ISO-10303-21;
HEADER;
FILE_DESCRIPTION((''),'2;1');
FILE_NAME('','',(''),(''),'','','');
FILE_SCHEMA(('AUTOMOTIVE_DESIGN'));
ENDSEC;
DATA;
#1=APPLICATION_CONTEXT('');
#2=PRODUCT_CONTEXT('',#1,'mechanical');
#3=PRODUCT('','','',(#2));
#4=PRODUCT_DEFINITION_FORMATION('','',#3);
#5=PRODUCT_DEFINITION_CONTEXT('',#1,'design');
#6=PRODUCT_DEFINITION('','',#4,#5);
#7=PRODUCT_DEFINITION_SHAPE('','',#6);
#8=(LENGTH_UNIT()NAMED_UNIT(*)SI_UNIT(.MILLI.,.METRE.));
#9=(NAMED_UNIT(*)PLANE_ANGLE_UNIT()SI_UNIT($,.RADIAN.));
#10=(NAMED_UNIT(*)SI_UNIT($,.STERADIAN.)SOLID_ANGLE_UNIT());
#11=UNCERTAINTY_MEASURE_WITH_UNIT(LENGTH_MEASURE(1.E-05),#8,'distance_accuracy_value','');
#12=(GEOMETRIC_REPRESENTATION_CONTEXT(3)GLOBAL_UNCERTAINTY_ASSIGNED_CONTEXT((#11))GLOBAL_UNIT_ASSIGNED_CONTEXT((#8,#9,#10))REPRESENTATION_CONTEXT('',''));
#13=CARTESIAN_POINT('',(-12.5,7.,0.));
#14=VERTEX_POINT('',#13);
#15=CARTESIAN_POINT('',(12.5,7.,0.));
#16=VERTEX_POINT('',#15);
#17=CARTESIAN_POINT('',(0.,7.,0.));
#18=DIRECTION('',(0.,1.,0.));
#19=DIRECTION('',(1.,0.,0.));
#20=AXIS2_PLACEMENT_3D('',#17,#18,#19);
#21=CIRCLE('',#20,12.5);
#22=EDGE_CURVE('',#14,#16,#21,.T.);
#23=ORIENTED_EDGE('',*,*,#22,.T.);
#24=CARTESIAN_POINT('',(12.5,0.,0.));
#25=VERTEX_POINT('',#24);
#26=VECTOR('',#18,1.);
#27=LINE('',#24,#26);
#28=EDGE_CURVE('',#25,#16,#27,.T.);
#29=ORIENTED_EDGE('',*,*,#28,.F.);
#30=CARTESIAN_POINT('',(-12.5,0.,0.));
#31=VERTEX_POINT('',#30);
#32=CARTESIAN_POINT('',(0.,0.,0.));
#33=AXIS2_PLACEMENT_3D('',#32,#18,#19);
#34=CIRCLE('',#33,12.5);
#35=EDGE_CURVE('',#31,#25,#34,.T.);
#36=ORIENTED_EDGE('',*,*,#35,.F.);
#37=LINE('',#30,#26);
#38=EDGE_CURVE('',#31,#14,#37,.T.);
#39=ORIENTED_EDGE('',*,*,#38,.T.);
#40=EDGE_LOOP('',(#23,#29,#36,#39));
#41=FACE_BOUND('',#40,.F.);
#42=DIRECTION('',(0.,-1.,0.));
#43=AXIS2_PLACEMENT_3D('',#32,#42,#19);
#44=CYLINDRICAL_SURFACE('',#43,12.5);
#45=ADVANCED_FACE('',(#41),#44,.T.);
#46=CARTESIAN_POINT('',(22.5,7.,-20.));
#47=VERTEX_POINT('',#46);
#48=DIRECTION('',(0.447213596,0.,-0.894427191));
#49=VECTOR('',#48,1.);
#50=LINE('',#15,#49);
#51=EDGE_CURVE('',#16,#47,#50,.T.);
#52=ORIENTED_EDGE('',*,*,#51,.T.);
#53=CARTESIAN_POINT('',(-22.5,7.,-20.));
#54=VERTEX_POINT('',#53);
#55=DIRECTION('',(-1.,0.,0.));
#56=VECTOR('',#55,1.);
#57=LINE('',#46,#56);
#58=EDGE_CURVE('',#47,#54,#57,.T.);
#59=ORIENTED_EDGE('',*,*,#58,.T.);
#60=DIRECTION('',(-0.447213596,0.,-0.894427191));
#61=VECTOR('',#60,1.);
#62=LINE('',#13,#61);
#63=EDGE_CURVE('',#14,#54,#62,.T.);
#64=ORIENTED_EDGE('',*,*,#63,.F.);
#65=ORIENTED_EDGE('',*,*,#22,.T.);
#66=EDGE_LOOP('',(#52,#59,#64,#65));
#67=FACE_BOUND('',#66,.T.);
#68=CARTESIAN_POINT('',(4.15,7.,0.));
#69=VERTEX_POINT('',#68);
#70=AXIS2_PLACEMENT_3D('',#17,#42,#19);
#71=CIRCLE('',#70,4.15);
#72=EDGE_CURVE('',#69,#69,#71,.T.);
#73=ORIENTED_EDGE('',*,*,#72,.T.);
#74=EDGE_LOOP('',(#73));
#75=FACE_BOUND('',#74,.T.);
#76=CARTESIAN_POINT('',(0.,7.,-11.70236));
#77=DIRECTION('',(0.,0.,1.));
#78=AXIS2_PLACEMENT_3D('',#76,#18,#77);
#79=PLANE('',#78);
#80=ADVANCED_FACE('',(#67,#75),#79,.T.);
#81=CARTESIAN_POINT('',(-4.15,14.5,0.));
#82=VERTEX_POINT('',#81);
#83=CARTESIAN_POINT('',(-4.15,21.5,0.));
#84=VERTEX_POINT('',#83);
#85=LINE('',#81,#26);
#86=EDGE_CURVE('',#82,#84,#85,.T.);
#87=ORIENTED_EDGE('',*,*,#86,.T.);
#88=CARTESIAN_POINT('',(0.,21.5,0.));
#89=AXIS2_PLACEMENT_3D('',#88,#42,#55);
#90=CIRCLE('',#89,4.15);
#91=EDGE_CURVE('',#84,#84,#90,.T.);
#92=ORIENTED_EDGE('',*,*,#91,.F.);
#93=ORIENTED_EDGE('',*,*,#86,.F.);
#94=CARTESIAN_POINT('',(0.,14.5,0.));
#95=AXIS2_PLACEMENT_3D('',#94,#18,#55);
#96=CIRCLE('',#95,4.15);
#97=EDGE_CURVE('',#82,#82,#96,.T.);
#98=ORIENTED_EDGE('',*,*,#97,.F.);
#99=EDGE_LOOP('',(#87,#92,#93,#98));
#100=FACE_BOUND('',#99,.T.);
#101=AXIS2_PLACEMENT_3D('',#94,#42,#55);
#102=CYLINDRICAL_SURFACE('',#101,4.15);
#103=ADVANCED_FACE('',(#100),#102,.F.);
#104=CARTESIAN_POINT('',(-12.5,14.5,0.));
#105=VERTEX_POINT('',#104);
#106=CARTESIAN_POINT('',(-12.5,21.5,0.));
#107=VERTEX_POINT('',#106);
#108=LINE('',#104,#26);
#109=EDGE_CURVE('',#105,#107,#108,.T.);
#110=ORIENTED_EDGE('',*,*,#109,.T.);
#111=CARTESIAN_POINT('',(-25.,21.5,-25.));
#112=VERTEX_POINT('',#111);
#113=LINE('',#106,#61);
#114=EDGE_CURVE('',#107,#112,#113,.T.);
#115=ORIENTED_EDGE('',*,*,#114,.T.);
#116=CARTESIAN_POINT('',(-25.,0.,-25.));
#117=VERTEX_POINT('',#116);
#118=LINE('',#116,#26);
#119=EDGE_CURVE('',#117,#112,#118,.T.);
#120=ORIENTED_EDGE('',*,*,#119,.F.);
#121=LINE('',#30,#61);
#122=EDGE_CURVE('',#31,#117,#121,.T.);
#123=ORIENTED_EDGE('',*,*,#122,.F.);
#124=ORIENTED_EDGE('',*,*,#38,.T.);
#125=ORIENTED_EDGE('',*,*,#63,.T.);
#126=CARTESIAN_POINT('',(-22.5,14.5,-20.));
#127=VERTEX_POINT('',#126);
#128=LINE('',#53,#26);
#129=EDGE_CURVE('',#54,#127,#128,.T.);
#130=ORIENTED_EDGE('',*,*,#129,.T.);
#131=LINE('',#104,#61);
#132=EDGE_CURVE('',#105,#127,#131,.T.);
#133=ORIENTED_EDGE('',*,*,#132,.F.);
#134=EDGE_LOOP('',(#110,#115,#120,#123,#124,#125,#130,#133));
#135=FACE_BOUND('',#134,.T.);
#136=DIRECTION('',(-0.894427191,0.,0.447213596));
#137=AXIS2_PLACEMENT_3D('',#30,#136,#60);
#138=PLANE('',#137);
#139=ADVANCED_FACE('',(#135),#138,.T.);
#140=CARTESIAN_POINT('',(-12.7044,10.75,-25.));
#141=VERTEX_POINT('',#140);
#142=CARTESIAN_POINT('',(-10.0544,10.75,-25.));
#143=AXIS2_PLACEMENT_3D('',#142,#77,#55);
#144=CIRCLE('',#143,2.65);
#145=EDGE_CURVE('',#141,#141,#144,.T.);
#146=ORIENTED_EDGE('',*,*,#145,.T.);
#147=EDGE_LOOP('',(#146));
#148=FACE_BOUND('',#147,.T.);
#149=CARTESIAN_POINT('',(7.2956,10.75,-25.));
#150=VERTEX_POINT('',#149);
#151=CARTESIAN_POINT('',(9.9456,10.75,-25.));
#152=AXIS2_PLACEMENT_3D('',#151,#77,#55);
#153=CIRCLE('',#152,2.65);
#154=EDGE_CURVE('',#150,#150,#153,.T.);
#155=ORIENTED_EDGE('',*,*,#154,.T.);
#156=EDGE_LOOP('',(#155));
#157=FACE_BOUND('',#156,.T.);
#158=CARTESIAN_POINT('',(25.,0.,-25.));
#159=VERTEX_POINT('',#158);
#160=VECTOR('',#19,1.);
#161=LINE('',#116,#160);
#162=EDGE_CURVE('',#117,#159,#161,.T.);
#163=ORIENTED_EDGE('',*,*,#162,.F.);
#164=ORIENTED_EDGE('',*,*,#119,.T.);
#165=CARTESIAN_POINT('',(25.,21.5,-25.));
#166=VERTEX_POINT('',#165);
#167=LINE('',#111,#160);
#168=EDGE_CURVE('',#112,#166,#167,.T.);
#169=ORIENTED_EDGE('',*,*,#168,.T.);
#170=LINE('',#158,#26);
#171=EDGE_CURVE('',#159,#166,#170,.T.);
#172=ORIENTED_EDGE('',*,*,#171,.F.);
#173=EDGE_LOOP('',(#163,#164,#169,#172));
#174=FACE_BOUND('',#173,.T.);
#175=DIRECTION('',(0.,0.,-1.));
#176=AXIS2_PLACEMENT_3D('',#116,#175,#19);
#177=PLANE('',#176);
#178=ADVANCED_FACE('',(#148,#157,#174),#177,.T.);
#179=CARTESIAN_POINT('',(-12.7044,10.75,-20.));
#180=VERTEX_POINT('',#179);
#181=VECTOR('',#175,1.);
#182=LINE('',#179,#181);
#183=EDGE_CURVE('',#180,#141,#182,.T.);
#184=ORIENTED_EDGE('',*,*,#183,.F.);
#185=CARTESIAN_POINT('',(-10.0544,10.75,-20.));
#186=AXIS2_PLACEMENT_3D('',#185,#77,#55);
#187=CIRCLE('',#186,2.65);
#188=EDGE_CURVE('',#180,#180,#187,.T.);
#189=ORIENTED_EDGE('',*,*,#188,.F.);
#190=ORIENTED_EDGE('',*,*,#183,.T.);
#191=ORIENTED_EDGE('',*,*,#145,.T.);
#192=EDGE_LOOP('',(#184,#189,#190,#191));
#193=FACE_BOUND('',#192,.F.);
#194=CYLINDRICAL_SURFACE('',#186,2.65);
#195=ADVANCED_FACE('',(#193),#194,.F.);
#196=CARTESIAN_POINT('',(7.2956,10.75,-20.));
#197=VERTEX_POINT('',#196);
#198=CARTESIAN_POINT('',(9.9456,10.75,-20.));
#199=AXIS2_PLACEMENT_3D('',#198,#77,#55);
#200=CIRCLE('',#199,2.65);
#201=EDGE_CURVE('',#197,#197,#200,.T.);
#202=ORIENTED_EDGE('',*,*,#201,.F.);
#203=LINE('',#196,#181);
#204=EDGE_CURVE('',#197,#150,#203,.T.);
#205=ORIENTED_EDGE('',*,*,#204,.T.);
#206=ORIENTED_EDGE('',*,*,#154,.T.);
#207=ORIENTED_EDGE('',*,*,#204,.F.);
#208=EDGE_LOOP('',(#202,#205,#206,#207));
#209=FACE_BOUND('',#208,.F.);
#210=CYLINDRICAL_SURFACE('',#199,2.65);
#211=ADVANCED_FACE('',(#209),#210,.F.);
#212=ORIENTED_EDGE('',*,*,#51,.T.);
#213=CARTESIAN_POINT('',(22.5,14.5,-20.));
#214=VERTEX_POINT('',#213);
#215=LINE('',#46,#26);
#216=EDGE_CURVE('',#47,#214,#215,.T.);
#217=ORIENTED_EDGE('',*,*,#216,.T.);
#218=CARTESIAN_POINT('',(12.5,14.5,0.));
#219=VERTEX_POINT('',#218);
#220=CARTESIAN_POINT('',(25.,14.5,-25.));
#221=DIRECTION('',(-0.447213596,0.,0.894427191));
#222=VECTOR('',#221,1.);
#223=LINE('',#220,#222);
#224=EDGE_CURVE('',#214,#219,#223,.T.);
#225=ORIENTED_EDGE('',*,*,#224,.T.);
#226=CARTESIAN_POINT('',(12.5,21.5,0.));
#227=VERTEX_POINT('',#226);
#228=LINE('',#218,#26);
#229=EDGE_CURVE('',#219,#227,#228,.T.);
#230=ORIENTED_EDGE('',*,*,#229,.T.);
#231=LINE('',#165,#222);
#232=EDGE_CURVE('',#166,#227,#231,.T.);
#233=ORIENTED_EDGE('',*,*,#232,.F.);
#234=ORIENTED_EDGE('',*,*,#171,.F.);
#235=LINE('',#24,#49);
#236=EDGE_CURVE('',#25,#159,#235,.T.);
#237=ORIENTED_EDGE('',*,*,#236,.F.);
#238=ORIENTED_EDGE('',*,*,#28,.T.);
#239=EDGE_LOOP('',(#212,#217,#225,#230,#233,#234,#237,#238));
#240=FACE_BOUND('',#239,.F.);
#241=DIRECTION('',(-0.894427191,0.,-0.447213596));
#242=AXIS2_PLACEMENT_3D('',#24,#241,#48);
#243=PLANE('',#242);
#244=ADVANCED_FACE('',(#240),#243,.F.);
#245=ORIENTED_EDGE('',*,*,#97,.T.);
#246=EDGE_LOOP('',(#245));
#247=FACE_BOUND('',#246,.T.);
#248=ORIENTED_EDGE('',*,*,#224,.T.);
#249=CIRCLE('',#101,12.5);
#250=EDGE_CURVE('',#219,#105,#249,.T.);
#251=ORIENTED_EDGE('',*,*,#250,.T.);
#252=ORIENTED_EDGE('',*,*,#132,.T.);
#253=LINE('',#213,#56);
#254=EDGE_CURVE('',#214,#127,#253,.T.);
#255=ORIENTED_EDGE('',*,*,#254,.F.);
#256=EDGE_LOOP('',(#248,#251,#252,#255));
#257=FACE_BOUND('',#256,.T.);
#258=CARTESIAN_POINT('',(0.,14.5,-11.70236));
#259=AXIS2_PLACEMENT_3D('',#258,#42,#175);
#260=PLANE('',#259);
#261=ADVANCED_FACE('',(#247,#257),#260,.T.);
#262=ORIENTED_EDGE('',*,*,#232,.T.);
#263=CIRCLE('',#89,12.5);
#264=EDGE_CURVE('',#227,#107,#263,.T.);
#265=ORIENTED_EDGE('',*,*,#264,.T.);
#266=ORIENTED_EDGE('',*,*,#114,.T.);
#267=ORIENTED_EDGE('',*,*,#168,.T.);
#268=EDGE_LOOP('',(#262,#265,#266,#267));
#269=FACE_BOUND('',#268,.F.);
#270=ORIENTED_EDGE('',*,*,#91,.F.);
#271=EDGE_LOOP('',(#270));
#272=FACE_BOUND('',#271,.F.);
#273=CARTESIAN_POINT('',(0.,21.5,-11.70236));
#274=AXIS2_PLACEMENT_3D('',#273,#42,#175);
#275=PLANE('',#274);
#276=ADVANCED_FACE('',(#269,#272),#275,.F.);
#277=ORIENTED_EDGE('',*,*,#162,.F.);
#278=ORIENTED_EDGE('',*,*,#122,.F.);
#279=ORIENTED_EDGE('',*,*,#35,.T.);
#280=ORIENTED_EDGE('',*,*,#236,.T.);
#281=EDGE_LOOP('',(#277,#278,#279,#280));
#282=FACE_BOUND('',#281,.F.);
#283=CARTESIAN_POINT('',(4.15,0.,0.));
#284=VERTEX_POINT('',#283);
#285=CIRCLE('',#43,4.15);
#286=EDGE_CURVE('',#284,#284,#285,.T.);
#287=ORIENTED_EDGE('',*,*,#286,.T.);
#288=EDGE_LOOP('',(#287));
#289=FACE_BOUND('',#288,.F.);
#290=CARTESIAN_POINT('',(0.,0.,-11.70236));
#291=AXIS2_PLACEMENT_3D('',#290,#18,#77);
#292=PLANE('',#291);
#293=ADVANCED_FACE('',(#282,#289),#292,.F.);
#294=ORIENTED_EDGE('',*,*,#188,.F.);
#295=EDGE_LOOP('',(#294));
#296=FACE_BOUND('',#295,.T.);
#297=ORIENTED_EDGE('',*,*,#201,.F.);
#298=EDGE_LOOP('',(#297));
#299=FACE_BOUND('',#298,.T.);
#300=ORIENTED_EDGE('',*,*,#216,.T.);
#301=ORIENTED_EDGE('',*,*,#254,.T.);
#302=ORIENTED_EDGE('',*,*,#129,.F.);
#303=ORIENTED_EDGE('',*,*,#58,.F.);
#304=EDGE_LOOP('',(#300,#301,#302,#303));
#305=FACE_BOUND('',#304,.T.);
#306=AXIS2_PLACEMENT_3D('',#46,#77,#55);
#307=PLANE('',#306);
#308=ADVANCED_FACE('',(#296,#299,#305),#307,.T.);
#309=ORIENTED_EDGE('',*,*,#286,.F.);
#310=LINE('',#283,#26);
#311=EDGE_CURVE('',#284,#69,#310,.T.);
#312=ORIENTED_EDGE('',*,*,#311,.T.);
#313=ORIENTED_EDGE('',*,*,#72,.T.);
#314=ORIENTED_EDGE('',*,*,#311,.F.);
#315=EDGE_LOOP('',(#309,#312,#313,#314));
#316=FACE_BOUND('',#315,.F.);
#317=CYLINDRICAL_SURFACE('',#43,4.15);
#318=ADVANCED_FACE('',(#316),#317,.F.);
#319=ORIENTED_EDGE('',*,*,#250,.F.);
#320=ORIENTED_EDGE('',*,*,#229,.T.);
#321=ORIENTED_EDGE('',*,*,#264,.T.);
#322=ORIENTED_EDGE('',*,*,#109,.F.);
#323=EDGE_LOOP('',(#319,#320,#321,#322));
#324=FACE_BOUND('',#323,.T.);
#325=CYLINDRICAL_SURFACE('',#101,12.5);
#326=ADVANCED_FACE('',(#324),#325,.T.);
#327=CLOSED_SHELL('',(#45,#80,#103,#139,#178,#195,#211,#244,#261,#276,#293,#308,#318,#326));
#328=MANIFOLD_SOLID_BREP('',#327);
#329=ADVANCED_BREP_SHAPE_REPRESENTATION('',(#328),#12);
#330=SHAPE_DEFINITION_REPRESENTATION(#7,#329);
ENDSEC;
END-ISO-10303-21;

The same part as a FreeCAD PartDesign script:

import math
import FreeCAD as App
import Part
import Sketcher
Q = App.Units.Quantity


def add_polygon(sketch, points):
    """Adds a closed chain of lines whose ends are joined by coincident constraints."""
    first, n = sketch.GeometryCount, len(points)
    for a, b in zip(points, points[1:] + points[:1]):
        sketch.addGeometry(Part.LineSegment(App.Vector(*a, 0), App.Vector(*b, 0)), False)
    for i in range(n):
        sketch.addConstraint(Sketcher.Constraint("Coincident", first + i, 2, first + (i + 1) % n, 1))

doc = App.newDocument("Part")
body = doc.addObject("PartDesign::Body", "Body")

# Sketch on XZ plane
sketch1 = doc.addObject("Sketcher::SketchObject", "Sketch")
body.addObject(sketch1)
sketch1.AttachmentSupport = (doc.XZ_Plane, [""])
sketch1.MapMode = "FlatFace"
sketch1.addGeometry([
    Part.LineSegment(App.Vector(25, -25, 0), App.Vector(12.5, 0, 0)),
    Part.ArcOfCircle(Part.Circle(App.Vector(0, 0, 0), App.Vector(0, 0, 1), 12.5), math.radians(0), math.radians(180)),
    Part.LineSegment(App.Vector(-12.5, 0, 0), App.Vector(-25, -25, 0)),
    Part.LineSegment(App.Vector(-25, -25, 0), App.Vector(25, -25, 0)),
], False)
sketch1.addConstraint([
    Sketcher.Constraint("Coincident", 0, 2, 1, 1),
    Sketcher.Constraint("Coincident", 1, 2, 2, 1),
    Sketcher.Constraint("Coincident", 2, 2, 3, 1),
    Sketcher.Constraint("Coincident", 3, 2, 0, 1),
    Sketcher.Constraint("Horizontal", 3),
    Sketcher.Constraint("Coincident", 1, 3, -1, 1),
    Sketcher.Constraint("PointOnObject", 0, 2, -1),
    Sketcher.Constraint("PointOnObject", 1, 2, -1),
    Sketcher.Constraint("Equal", 0, 2),
    Sketcher.Constraint("Radius", 1, Q("12.5 mm")),
    Sketcher.Constraint("DistanceX", 3, 1, 3, 2, Q("50 mm")),
    Sketcher.Constraint("DistanceY", 2, 2, -1, 1, Q("25 mm")),
])
pad1 = doc.addObject("PartDesign::Pad", "Pad")
body.addObject(pad1)
pad1.Profile = sketch1
pad1.Length = 7
pad1.Reversed = True

# Sketch on XZ plane
sketch2 = doc.addObject("Sketcher::SketchObject", "Sketch001")
body.addObject(sketch2)
sketch2.AttachmentSupport = (doc.XZ_Plane, [""])
sketch2.MapMode = "FlatFace"
sketch2.addGeometry(Part.Circle(App.Vector(0, 0, 0), App.Vector(0, 0, 1), 4.15), False)
sketch2.addConstraint([
    Sketcher.Constraint("Coincident", 0, 3, -1, 1),
    Sketcher.Constraint("Diameter", 0, Q("8.3 mm")),
])
pocket1 = doc.addObject("PartDesign::Pocket", "Pocket")
body.addObject(pocket1)
pocket1.Profile = sketch2
pocket1.Type = "ThroughAll"

# Sketch on XZ plane
sketch3 = doc.addObject("Sketcher::SketchObject", "Sketch002")
body.addObject(sketch3)
sketch3.AttachmentSupport = (doc.XZ_Plane, [""])
sketch3.MapMode = "FlatFace"
sketch3.AttachmentOffset = App.Placement(App.Vector(0, 0, -7), App.Rotation())
add_polygon(sketch3, [(-22.5, -20), (22.5, -20), (25, -25), (-25, -25)])  # lines 0-3
sketch3.addConstraint([
    Sketcher.Constraint("Horizontal", 0),
    Sketcher.Constraint("Horizontal", 2),
    Sketcher.Constraint("Equal", 1, 3),
    Sketcher.Constraint("DistanceX", 0, 1, 0, 2, Q("45 mm")),
    Sketcher.Constraint("DistanceX", 2, 2, 2, 1, Q("50 mm")),
    Sketcher.Constraint("DistanceY", 0, 2, -1, 1, Q("20 mm")),
    Sketcher.Constraint("DistanceX", -1, 1, 1, 2, Q("25 mm")),
    Sketcher.Constraint("DistanceY", 1, 2, -1, 1, Q("25 mm")),
])
pad2 = doc.addObject("PartDesign::Pad", "Pad001")
body.addObject(pad2)
pad2.Profile = sketch3
pad2.Length = 7.5
pad2.Reversed = True

# Sketch on XZ plane
sketch4 = doc.addObject("Sketcher::SketchObject", "Sketch003")
body.addObject(sketch4)
sketch4.AttachmentSupport = (doc.XZ_Plane, [""])
sketch4.MapMode = "FlatFace"
sketch4.AttachmentOffset = App.Placement(App.Vector(0, 0, -14.5), App.Rotation())
sketch4.addGeometry([
    Part.LineSegment(App.Vector(12.5, 0, 0), App.Vector(25, -25, 0)),
    Part.LineSegment(App.Vector(25, -25, 0), App.Vector(-25, -25, 0)),
    Part.LineSegment(App.Vector(-25, -25, 0), App.Vector(-12.5, 0, 0)),
    Part.ArcOfCircle(Part.Circle(App.Vector(0, 0, 0), App.Vector(0, 0, 1), 12.5), math.radians(0), math.radians(180)),
], False)
sketch4.addConstraint([
    Sketcher.Constraint("Coincident", 0, 2, 1, 1),
    Sketcher.Constraint("Coincident", 1, 2, 2, 1),
    Sketcher.Constraint("Coincident", 2, 2, 3, 2),
    Sketcher.Constraint("Coincident", 3, 1, 0, 1),
    Sketcher.Constraint("Horizontal", 1),
    Sketcher.Constraint("Coincident", 3, 3, -1, 1),
    Sketcher.Constraint("PointOnObject", 2, 2, -1),
    Sketcher.Constraint("PointOnObject", 3, 1, -1),
    Sketcher.Constraint("Equal", 0, 2),
    Sketcher.Constraint("Radius", 3, Q("12.5 mm")),
    Sketcher.Constraint("DistanceX", 1, 2, 1, 1, Q("50 mm")),
    Sketcher.Constraint("DistanceY", 0, 2, -1, 1, Q("25 mm")),
])
pad3 = doc.addObject("PartDesign::Pad", "Pad002")
body.addObject(pad3)
pad3.Profile = sketch4
pad3.Length = 7
pad3.Reversed = True

# Sketch on XZ plane
sketch5 = doc.addObject("Sketcher::SketchObject", "Sketch004")
body.addObject(sketch5)
sketch5.AttachmentSupport = (doc.XZ_Plane, [""])
sketch5.MapMode = "FlatFace"
sketch5.AttachmentOffset = App.Placement(App.Vector(0, 0, -14.5), App.Rotation())
sketch5.addGeometry(Part.Circle(App.Vector(0, 0, 0), App.Vector(0, 0, 1), 4.15), False)
sketch5.addConstraint([
    Sketcher.Constraint("Coincident", 0, 3, -1, 1),
    Sketcher.Constraint("Diameter", 0, Q("8.3 mm")),
])
pocket2 = doc.addObject("PartDesign::Pocket", "Pocket001")
body.addObject(pocket2)
pocket2.Profile = sketch5
pocket2.Type = "ThroughAll"

# Sketch on XY plane
sketch6 = doc.addObject("Sketcher::SketchObject", "Sketch005")
body.addObject(sketch6)
sketch6.AttachmentSupport = (doc.XY_Plane, [""])
sketch6.MapMode = "FlatFace"
sketch6.AttachmentOffset = App.Placement(App.Vector(0, 0, -20), App.Rotation())
sketch6.addGeometry([
    Part.Circle(App.Vector(9.9456, 10.75, 0), App.Vector(0, 0, 1), 2.65),
    Part.Circle(App.Vector(-10.0544, 10.75, 0), App.Vector(0, 0, 1), 2.65),
], False)
sketch6.addConstraint([
    Sketcher.Constraint("Equal", 0, 1),
    Sketcher.Constraint("Horizontal", 0, 3, 1, 3),
    Sketcher.Constraint("Diameter", 0, Q("5.3 mm")),
    Sketcher.Constraint("DistanceX", 1, 3, 0, 3, Q("20 mm")),
    Sketcher.Constraint("DistanceY", -1, 1, 0, 3, Q("10.75 mm")),
    Sketcher.Constraint("DistanceX", -1, 1, 0, 3, Q("9.9456 mm")),
])
pocket3 = doc.addObject("PartDesign::Pocket", "Pocket002")
body.addObject(pocket3)
pocket3.Profile = sketch6
pocket3.Type = "ThroughAll"

doc.recompute()
